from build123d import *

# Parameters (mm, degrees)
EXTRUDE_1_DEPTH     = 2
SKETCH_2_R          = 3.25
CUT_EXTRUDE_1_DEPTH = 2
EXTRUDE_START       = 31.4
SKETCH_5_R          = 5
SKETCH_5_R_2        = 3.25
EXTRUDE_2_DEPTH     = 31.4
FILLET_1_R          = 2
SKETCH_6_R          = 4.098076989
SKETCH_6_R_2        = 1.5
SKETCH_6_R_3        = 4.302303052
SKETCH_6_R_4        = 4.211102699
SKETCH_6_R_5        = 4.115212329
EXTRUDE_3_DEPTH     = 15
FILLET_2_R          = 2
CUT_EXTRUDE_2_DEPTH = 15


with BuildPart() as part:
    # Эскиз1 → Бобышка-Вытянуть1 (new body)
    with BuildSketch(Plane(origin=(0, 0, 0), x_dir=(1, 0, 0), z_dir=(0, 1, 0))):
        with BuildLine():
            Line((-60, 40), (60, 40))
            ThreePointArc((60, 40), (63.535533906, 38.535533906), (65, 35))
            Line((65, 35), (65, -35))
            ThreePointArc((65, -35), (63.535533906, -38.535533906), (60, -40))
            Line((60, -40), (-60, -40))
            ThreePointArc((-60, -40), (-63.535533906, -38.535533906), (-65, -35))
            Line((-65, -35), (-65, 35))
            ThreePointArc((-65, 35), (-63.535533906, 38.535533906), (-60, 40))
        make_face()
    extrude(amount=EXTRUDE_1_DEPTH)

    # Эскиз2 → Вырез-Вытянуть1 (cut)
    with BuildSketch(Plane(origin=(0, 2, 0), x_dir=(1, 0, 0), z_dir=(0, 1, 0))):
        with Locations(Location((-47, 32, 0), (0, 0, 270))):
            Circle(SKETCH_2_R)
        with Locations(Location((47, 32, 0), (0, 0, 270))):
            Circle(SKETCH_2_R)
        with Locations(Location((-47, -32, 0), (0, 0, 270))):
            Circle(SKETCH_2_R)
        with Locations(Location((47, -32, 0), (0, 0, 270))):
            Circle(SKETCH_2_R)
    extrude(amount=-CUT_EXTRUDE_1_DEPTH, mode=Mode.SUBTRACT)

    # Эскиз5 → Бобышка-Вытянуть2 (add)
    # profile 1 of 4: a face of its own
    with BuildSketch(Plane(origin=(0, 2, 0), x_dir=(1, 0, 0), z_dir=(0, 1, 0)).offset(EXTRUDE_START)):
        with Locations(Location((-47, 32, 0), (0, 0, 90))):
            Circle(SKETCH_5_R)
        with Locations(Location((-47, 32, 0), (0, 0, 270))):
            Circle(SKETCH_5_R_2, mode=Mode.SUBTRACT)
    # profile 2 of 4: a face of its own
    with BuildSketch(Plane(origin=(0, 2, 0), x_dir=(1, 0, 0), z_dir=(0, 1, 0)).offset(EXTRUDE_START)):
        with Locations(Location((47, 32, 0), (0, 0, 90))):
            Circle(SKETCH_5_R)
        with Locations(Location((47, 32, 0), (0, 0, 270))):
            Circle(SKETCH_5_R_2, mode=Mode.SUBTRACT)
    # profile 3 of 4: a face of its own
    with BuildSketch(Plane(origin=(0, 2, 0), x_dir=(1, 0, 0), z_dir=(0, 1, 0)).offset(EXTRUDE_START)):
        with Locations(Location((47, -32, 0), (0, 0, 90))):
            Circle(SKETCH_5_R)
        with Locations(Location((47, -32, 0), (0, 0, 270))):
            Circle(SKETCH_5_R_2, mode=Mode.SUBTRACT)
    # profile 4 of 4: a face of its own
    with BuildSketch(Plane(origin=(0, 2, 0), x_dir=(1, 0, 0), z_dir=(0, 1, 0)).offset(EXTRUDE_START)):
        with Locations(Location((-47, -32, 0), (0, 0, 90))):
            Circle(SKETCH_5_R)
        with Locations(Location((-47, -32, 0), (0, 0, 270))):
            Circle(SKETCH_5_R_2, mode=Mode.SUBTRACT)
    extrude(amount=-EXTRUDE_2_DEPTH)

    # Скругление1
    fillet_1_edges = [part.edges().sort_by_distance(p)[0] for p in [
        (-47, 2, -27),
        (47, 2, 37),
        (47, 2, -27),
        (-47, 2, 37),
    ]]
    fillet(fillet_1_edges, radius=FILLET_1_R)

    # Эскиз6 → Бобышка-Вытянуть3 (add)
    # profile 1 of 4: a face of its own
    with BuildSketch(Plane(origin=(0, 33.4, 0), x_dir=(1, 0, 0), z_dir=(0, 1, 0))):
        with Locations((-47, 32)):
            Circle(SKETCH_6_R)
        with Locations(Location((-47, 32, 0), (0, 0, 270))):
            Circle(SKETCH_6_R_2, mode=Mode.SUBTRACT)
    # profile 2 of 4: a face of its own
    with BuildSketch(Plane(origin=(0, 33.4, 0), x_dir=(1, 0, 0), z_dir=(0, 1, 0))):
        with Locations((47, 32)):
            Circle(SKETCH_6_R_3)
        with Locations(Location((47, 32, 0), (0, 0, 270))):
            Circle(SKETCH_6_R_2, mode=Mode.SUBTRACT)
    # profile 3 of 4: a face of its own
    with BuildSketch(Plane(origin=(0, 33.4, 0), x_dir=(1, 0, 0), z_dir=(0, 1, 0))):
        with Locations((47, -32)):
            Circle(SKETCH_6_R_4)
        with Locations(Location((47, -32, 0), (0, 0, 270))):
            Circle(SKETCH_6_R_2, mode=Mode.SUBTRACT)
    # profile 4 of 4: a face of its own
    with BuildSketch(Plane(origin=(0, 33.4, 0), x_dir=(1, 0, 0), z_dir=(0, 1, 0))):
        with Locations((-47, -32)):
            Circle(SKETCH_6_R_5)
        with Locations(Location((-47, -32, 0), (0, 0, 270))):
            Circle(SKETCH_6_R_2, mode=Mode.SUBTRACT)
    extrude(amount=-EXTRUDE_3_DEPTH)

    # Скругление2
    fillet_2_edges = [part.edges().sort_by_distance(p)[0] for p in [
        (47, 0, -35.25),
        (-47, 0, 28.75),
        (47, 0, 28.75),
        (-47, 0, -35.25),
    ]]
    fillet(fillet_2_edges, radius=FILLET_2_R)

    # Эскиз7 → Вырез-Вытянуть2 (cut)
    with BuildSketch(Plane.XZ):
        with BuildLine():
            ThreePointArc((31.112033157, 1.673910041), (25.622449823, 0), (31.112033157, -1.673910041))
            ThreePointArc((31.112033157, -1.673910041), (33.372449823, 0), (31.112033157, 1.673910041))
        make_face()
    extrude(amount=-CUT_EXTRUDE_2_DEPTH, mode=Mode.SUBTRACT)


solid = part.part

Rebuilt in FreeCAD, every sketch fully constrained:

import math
import FreeCAD as App
import Part
import Sketcher


def edges_at(feature, points):
    """Names of the edges that pass closest to the given points."""
    edges = feature.Shape.Edges
    near = lambda p: min(range(len(edges)), key=lambda i: edges[i].distToShape(Part.Vertex(*p))[0])
    return sorted({f"Edge{near(p) + 1}" for p in points})

doc = App.newDocument("Part")
params = doc.addObject("Spreadsheet::Sheet", "Params")
for row, (alias, value) in enumerate([
    ("sketch1_radius", "5 mm"),
    ("sketch1_width", "120 mm"),
    ("sketch1_height", "70 mm"),
    ("pad1_length", "2 mm"),
    ("sketch2_diameter", "6.5 mm"),
    ("pocket1_length", "2 mm"),
    ("sketch3_diameter", "10 mm"),
    ("sketch3_diameter2", "6.5 mm"),
    ("pad2_length", "31.4 mm"),
    ("fillet_radius", "2 mm"),
    ("sketch4_diameter", "3 mm"),
    ("pad3_length", "15 mm"),
    ("fillet2_radius", "2 mm"),
    ("sketch5_radius", "3 mm"),
    ("sketch5_radius2", "1.75 mm"),
    ("pocket2_length", "15 mm"),
], start=1):
    params.set(f"A{row}", alias)
    params.set(f"B{row}", "=" + value)
    params.setAlias(f"B{row}", alias)

body = doc.addObject("PartDesign::Body", "Body")

sketch1 = doc.addObject("Sketcher::SketchObject", "Sketch")
body.addObject(sketch1)
sketch1.AttachmentSupport = (doc.XZ_Plane, [""])
sketch1.MapMode = "FlatFace"
sketch1.addGeometry(Part.LineSegment(App.Vector(60, -40, 0), App.Vector(-60, -40, 0)), False)
sketch1.addGeometry(Part.ArcOfCircle(Part.Circle(App.Vector(-60, -35, 0), App.Vector(0, 0, 1), 5), math.radians(180), math.radians(270)), False)
sketch1.addGeometry(Part.LineSegment(App.Vector(-65, -35, 0), App.Vector(-65, 35, 0)), False)
sketch1.addGeometry(Part.ArcOfCircle(Part.Circle(App.Vector(-60, 35, 0), App.Vector(0, 0, 1), 5), math.radians(90), math.radians(180)), False)
sketch1.addGeometry(Part.LineSegment(App.Vector(-60, 40, 0), App.Vector(60, 40, 0)), False)
sketch1.addGeometry(Part.ArcOfCircle(Part.Circle(App.Vector(60, 35, 0), App.Vector(0, 0, 1), 5), math.radians(0), math.radians(90)), False)
sketch1.addGeometry(Part.LineSegment(App.Vector(65, 35, 0), App.Vector(65, -35, 0)), False)
sketch1.addGeometry(Part.ArcOfCircle(Part.Circle(App.Vector(60, -35, 0), App.Vector(0, 0, 1), 5), math.radians(-90), math.radians(0)), False)
sketch1.addConstraint(Sketcher.Constraint("Tangent", 0, 2, 1, 2))
sketch1.addConstraint(Sketcher.Constraint("Tangent", 1, 1, 2, 1))
sketch1.addConstraint(Sketcher.Constraint("Tangent", 2, 2, 3, 2))
sketch1.addConstraint(Sketcher.Constraint("Tangent", 3, 1, 4, 1))
sketch1.addConstraint(Sketcher.Constraint("Tangent", 4, 2, 5, 2))
sketch1.addConstraint(Sketcher.Constraint("Tangent", 5, 1, 6, 1))
sketch1.addConstraint(Sketcher.Constraint("Tangent", 6, 2, 7, 2))
sketch1.addConstraint(Sketcher.Constraint("Tangent", 7, 1, 0, 1))
sketch1.addConstraint(Sketcher.Constraint("Horizontal", 0))
sketch1.addConstraint(Sketcher.Constraint("Vertical", 2))
sketch1.addConstraint(Sketcher.Constraint("Horizontal", 4))
sketch1.addConstraint(Sketcher.Constraint("Vertical", 6))
sketch1.addConstraint(Sketcher.Constraint("Equal", 1, 3))
sketch1.addConstraint(Sketcher.Constraint("Equal", 3, 5))
sketch1.addConstraint(Sketcher.Constraint("Equal", 5, 7))
sketch1.addConstraint(Sketcher.Constraint("Symmetric", 1, 3, 5, 3, -1, 1))
sketch1.addConstraint(Sketcher.Constraint("Radius", 1, 5.0))
sketch1.addConstraint(Sketcher.Constraint("DistanceX", 0, 2, 0, 1, 120.0))
sketch1.addConstraint(Sketcher.Constraint("DistanceY", 2, 1, 2, 2, 70.0))
sketch1.setExpression("Constraints[16]", "Params.sketch1_radius")
sketch1.setExpression("Constraints[17]", "Params.sketch1_width")
sketch1.setExpression("Constraints[18]", "Params.sketch1_height")
pad1 = doc.addObject("PartDesign::Pad", "Pad")
body.addObject(pad1)
pad1.Profile = sketch1
pad1.setExpression("Length", "Params.pad1_length")
pad1.Reversed = True

sketch2 = doc.addObject("Sketcher::SketchObject", "Sketch001")
body.addObject(sketch2)
sketch2.AttachmentSupport = (doc.XZ_Plane, [""])
sketch2.MapMode = "FlatFace"
sketch2.AttachmentOffset = App.Placement(App.Vector(0, 0, -2), App.Rotation())
sketch2.addGeometry(Part.Circle(App.Vector(-47, -32, 0), App.Vector(0, 0, 1), 3.2), False)
sketch2.addGeometry(Part.Circle(App.Vector(47, -32, 0), App.Vector(0, 0, 1), 3.2), False)
sketch2.addGeometry(Part.Circle(App.Vector(-47, 32, 0), App.Vector(0, 0, 1), 3.2), False)
sketch2.addGeometry(Part.Circle(App.Vector(47, 32, 0), App.Vector(0, 0, 1), 3.2), False)
sketch2.addConstraint(Sketcher.Constraint("Equal", 0, 1))
sketch2.addConstraint(Sketcher.Constraint("Equal", 1, 2))
sketch2.addConstraint(Sketcher.Constraint("Equal", 2, 3))
sketch2.addConstraint(Sketcher.Constraint("Symmetric", 1, 3, 2, 3, -1, 1))
sketch2.addConstraint(Sketcher.Constraint("Symmetric", 0, 3, 3, 3, -1, 1))
sketch2.addConstraint(Sketcher.Constraint("Symmetric", 0, 3, 1, 3, -2))
sketch2.addConstraint(Sketcher.Constraint("Diameter", 0, 6.5))
sketch2.addConstraint(Sketcher.Constraint("DistanceX", 0, 3, -1, 1, 47.0))
sketch2.addConstraint(Sketcher.Constraint("DistanceY", 0, 3, -1, 1, 32.0))
sketch2.setExpression("Constraints[6]", "Params.sketch2_diameter")
pocket1 = doc.addObject("PartDesign::Pocket", "Pocket")
body.addObject(pocket1)
pocket1.Profile = sketch2
pocket1.setExpression("Length", "Params.pocket1_length")
pocket1.Reversed = True

sketch3 = doc.addObject("Sketcher::SketchObject", "Sketch002")
body.addObject(sketch3)
sketch3.AttachmentSupport = (doc.XZ_Plane, [""])
sketch3.MapMode = "FlatFace"
sketch3.AttachmentOffset = App.Placement(App.Vector(0, 0, -33.4), App.Rotation())
sketch3.addGeometry(Part.Circle(App.Vector(-47, -32, 0), App.Vector(0, 0, 1), 5), False)
sketch3.addGeometry(Part.Circle(App.Vector(-47, -32, 0), App.Vector(0, 0, 1), 3.2), False)
sketch3.addGeometry(Part.Circle(App.Vector(47, -32, 0), App.Vector(0, 0, 1), 5), False)
sketch3.addGeometry(Part.Circle(App.Vector(47, -32, 0), App.Vector(0, 0, 1), 3.2), False)
sketch3.addGeometry(Part.Circle(App.Vector(47, 32, 0), App.Vector(0, 0, 1), 5), False)
sketch3.addGeometry(Part.Circle(App.Vector(47, 32, 0), App.Vector(0, 0, 1), 3.2), False)
sketch3.addGeometry(Part.Circle(App.Vector(-47, 32, 0), App.Vector(0, 0, 1), 5), False)
sketch3.addGeometry(Part.Circle(App.Vector(-47, 32, 0), App.Vector(0, 0, 1), 3.2), False)
sketch3.addConstraint(Sketcher.Constraint("Coincident", 1, 3, 0, 3))
sketch3.addConstraint(Sketcher.Constraint("Coincident", 3, 3, 2, 3))
sketch3.addConstraint(Sketcher.Constraint("Coincident", 5, 3, 4, 3))
sketch3.addConstraint(Sketcher.Constraint("Coincident", 7, 3, 6, 3))
sketch3.addConstraint(Sketcher.Constraint("Equal", 0, 2))
sketch3.addConstraint(Sketcher.Constraint("Equal", 1, 3))
sketch3.addConstraint(Sketcher.Constraint("Equal", 2, 4))
sketch3.addConstraint(Sketcher.Constraint("Equal", 3, 5))
sketch3.addConstraint(Sketcher.Constraint("Equal", 4, 6))
sketch3.addConstraint(Sketcher.Constraint("Equal", 5, 7))
sketch3.addConstraint(Sketcher.Constraint("Symmetric", 0, 3, 4, 3, -1, 1))
sketch3.addConstraint(Sketcher.Constraint("Symmetric", 2, 3, 6, 3, -1, 1))
sketch3.addConstraint(Sketcher.Constraint("Symmetric", 0, 3, 2, 3, -2))
sketch3.addConstraint(Sketcher.Constraint("Diameter", 0, 10.0))
sketch3.addConstraint(Sketcher.Constraint("Diameter", 1, 6.5))
sketch3.addConstraint(Sketcher.Constraint("DistanceX", 0, 3, -1, 1, 47.0))
sketch3.addConstraint(Sketcher.Constraint("DistanceY", 0, 3, -1, 1, 32.0))
sketch3.setExpression("Constraints[13]", "Params.sketch3_diameter")
sketch3.setExpression("Constraints[14]", "Params.sketch3_diameter2")
pad2 = doc.addObject("PartDesign::Pad", "Pad001")
body.addObject(pad2)
pad2.Profile = sketch3
pad2.setExpression("Length", "Params.pad2_length")
doc.recompute()

fillet = doc.addObject("PartDesign::Fillet", "Fillet")
body.addObject(fillet)
fillet.Base = (pad2, edges_at(pad2, [
    (-47, 2, -27),
    (47, 2, 37),
    (47, 2, -27),
    (-47, 2, 37),
]))
fillet.setExpression("Radius", "Params.fillet_radius")

sketch4 = doc.addObject("Sketcher::SketchObject", "Sketch003")
body.addObject(sketch4)
sketch4.AttachmentSupport = (doc.XZ_Plane, [""])
sketch4.MapMode = "FlatFace"
sketch4.AttachmentOffset = App.Placement(App.Vector(0, 0, -33.4), App.Rotation())
sketch4.addGeometry(Part.Circle(App.Vector(-47, -32, 0), App.Vector(0, 0, 1), 4.1), False)
sketch4.addGeometry(Part.Circle(App.Vector(-47, -32, 0), App.Vector(0, 0, 1), 1.5), False)
sketch4.addGeometry(Part.Circle(App.Vector(47, -32, 0), App.Vector(0, 0, 1), 4.3), False)
sketch4.addGeometry(Part.Circle(App.Vector(47, -32, 0), App.Vector(0, 0, 1), 1.5), False)
sketch4.addGeometry(Part.Circle(App.Vector(47, 32, 0), App.Vector(0, 0, 1), 4.2), False)
sketch4.addGeometry(Part.Circle(App.Vector(47, 32, 0), App.Vector(0, 0, 1), 1.5), False)
sketch4.addGeometry(Part.Circle(App.Vector(-47, 32, 0), App.Vector(0, 0, 1), 4.1), False)
sketch4.addGeometry(Part.Circle(App.Vector(-47, 32, 0), App.Vector(0, 0, 1), 1.5), False)
sketch4.addConstraint(Sketcher.Constraint("Coincident", 1, 3, 0, 3))
sketch4.addConstraint(Sketcher.Constraint("Coincident", 3, 3, 2, 3))
sketch4.addConstraint(Sketcher.Constraint("Coincident", 5, 3, 4, 3))
sketch4.addConstraint(Sketcher.Constraint("Coincident", 7, 3, 6, 3))
sketch4.addConstraint(Sketcher.Constraint("Equal", 1, 3))
sketch4.addConstraint(Sketcher.Constraint("Equal", 3, 5))
sketch4.addConstraint(Sketcher.Constraint("Equal", 5, 7))
sketch4.addConstraint(Sketcher.Constraint("Symmetric", 0, 3, 4, 3, -1, 1))
sketch4.addConstraint(Sketcher.Constraint("Symmetric", 2, 3, 6, 3, -1, 1))
sketch4.addConstraint(Sketcher.Constraint("Symmetric", 0, 3, 2, 3, -2))
sketch4.addConstraint(Sketcher.Constraint("Diameter", 1, 3.0))
sketch4.addConstraint(Sketcher.Constraint("DistanceX", 0, 3, -1, 1, 47.0))
sketch4.addConstraint(Sketcher.Constraint("DistanceY", 0, 3, -1, 1, 32.0))
sketch4.addConstraint(Sketcher.Constraint("Diameter", 0, 8.196154))
sketch4.addConstraint(Sketcher.Constraint("Diameter", 2, 8.604606))
sketch4.addConstraint(Sketcher.Constraint("Diameter", 4, 8.422205))
sketch4.addConstraint(Sketcher.Constraint("Diameter", 6, 8.230425))
sketch4.setExpression("Constraints[10]", "Params.sketch4_diameter")
pad3 = doc.addObject("PartDesign::Pad", "Pad002")
body.addObject(pad3)
pad3.Profile = sketch4
pad3.setExpression("Length", "Params.pad3_length")
doc.recompute()

fillet2 = doc.addObject("PartDesign::Fillet", "Fillet001")
body.addObject(fillet2)
fillet2.Base = (pad3, edges_at(pad3, [
    (47, 0, -35.25),
    (-47, 0, 28.75),
    (47, 0, 28.75),
    (-47, 0, -35.25),
]))
fillet2.setExpression("Radius", "Params.fillet2_radius")

sketch5 = doc.addObject("Sketcher::SketchObject", "Sketch004")
body.addObject(sketch5)
sketch5.AttachmentSupport = (doc.XZ_Plane, [""])
sketch5.MapMode = "FlatFace"
sketch5.addGeometry(Part.ArcOfCircle(Part.Circle(App.Vector(28.6, 0, 0), App.Vector(0, 0, 1), 3), math.radians(34), math.radians(326)), False)
sketch5.addGeometry(Part.ArcOfCircle(Part.Circle(App.Vector(31.6, 0, 0), App.Vector(0, 0, 1), 1.8), math.radians(-107), math.radians(107)), False)
sketch5.addConstraint(Sketcher.Constraint("Coincident", 0, 1, 1, 2))
sketch5.addConstraint(Sketcher.Constraint("Coincident", 1, 1, 0, 2))
sketch5.addConstraint(Sketcher.Constraint("Symmetric", 0, 1, 1, 1, -1))
sketch5.addConstraint(Sketcher.Constraint("Radius", 0, 3.0))
sketch5.addConstraint(Sketcher.Constraint("Radius", 1, 1.75))
sketch5.addConstraint(Sketcher.Constraint("DistanceX", 0, 3, 1, 3, 3.0))
sketch5.addConstraint(Sketcher.Constraint("DistanceX", -1, 1, 0, 3, 28.62245))
sketch5.setExpression("Constraints[3]", "Params.sketch5_radius")
sketch5.setExpression("Constraints[4]", "Params.sketch5_radius2")
pocket2 = doc.addObject("PartDesign::Pocket", "Pocket001")
body.addObject(pocket2)
pocket2.Profile = sketch5
pocket2.setExpression("Length", "Params.pocket2_length")

doc.recompute()
